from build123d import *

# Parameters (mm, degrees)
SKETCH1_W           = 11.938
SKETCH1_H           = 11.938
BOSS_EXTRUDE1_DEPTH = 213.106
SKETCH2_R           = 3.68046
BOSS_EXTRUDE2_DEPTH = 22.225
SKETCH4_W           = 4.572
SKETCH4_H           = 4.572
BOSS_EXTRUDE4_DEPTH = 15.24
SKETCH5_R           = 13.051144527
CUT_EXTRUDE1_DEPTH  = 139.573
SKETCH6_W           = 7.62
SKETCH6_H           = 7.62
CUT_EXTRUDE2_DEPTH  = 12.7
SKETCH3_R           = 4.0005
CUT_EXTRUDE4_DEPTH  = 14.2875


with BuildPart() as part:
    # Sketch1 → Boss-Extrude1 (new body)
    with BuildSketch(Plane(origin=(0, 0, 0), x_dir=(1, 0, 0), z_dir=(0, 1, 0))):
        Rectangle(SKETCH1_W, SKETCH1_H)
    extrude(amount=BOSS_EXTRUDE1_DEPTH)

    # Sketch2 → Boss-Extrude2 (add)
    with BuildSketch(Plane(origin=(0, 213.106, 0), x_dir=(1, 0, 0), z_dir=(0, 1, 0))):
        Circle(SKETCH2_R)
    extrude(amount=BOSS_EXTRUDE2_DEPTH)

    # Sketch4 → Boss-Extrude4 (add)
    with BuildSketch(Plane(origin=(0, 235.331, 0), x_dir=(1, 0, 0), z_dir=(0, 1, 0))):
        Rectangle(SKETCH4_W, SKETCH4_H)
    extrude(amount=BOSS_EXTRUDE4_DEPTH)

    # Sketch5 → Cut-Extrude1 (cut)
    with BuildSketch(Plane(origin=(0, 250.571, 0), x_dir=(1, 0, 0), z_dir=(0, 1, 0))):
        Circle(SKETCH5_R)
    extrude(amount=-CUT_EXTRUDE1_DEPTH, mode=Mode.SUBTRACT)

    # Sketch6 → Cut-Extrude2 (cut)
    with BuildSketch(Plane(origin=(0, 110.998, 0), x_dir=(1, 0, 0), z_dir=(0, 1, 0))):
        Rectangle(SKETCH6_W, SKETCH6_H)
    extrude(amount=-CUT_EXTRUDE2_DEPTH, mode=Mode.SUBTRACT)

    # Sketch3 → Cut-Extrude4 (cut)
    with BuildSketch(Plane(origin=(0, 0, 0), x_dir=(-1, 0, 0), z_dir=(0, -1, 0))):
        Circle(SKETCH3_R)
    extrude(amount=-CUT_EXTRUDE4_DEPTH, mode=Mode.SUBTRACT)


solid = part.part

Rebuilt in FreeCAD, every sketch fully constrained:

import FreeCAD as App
import Part
import Sketcher

V = App.Vector
Q = App.Units.Quantity

doc = App.newDocument("Part")
body = doc.addObject("PartDesign::Body", "Body")

# Sketch on XZ plane
sketch1 = body.newObject("Sketcher::SketchObject", "Sketch")
sketch1.AttachmentSupport = (doc.getObject("XZ_Plane"), [""])
sketch1.MapMode = "FlatFace"
sketch1.addGeometry(Part.LineSegment(V(-5.969, -5.969, 0), V(-5.969, 5.969, 0)), False)
sketch1.addGeometry(Part.LineSegment(V(-5.969, 5.969, 0), V(5.969, 5.969, 0)), False)
sketch1.addGeometry(Part.LineSegment(V(5.969, 5.969, 0), V(5.969, -5.969, 0)), False)
sketch1.addGeometry(Part.LineSegment(V(5.969, -5.969, 0), V(-5.969, -5.969, 0)), False)
sketch1.addConstraint(Sketcher.Constraint("Coincident", 0, 2, 1, 1))
sketch1.addConstraint(Sketcher.Constraint("Coincident", 1, 2, 2, 1))
sketch1.addConstraint(Sketcher.Constraint("Coincident", 2, 2, 3, 1))
sketch1.addConstraint(Sketcher.Constraint("Coincident", 3, 2, 0, 1))
sketch1.addConstraint(Sketcher.Constraint("Vertical", 0))
sketch1.addConstraint(Sketcher.Constraint("Horizontal", 1))
sketch1.addConstraint(Sketcher.Constraint("Vertical", 2))
sketch1.addConstraint(Sketcher.Constraint("Horizontal", 3))
sketch1.addConstraint(Sketcher.Constraint("Symmetric", 0, 2, 2, 2, -1, 1))
sketch1.addConstraint(Sketcher.Constraint("Equal", 3, 0))
sketch1.addConstraint(Sketcher.Constraint("DistanceX", 1, 1, 1, 2, Q("0.47 in")))
pad1 = body.newObject("PartDesign::Pad", "Pad")
pad1.Profile = sketch1
pad1.Length = Q("8.39 in")
pad1.Reversed = True

# Sketch on XZ plane
sketch2 = body.newObject("Sketcher::SketchObject", "Sketch001")
sketch2.AttachmentSupport = (doc.getObject("XZ_Plane"), [""])
sketch2.MapMode = "FlatFace"
sketch2.AttachmentOffset = App.Placement(V(0, 0, -8.39 * 25.4), App.Rotation())
sketch2.addGeometry(Part.Circle(V(0, 0, 0), V(0, 0, 1), 3.68046), False)
sketch2.addConstraint(Sketcher.Constraint("Coincident", 0, 3, -1, 1))
sketch2.addConstraint(Sketcher.Constraint("Diameter", 0, Q("0.2898 in")))
pad2 = body.newObject("PartDesign::Pad", "Pad001")
pad2.Profile = sketch2
pad2.Length = Q("0.875 in")
pad2.Reversed = True

# Sketch on XZ plane
sketch3 = body.newObject("Sketcher::SketchObject", "Sketch002")
sketch3.AttachmentSupport = (doc.getObject("XZ_Plane"), [""])
sketch3.MapMode = "FlatFace"
sketch3.AttachmentOffset = App.Placement(V(0, 0, -9.265 * 25.4), App.Rotation())
sketch3.addGeometry(Part.LineSegment(V(-2.286, -2.286, 0), V(-2.286, 2.286, 0)), False)
sketch3.addGeometry(Part.LineSegment(V(-2.286, 2.286, 0), V(2.286, 2.286, 0)), False)
sketch3.addGeometry(Part.LineSegment(V(2.286, 2.286, 0), V(2.286, -2.286, 0)), False)
sketch3.addGeometry(Part.LineSegment(V(2.286, -2.286, 0), V(-2.286, -2.286, 0)), False)
sketch3.addConstraint(Sketcher.Constraint("Coincident", 0, 2, 1, 1))
sketch3.addConstraint(Sketcher.Constraint("Coincident", 1, 2, 2, 1))
sketch3.addConstraint(Sketcher.Constraint("Coincident", 2, 2, 3, 1))
sketch3.addConstraint(Sketcher.Constraint("Coincident", 3, 2, 0, 1))
sketch3.addConstraint(Sketcher.Constraint("Vertical", 0))
sketch3.addConstraint(Sketcher.Constraint("Horizontal", 1))
sketch3.addConstraint(Sketcher.Constraint("Vertical", 2))
sketch3.addConstraint(Sketcher.Constraint("Horizontal", 3))
sketch3.addConstraint(Sketcher.Constraint("Symmetric", 0, 2, 2, 2, -1, 1))
sketch3.addConstraint(Sketcher.Constraint("Equal", 3, 0))
sketch3.addConstraint(Sketcher.Constraint("DistanceX", 1, 1, 1, 2, Q("0.18 in")))
pad3 = body.newObject("PartDesign::Pad", "Pad002")
pad3.Profile = sketch3
pad3.Length = Q("0.6 in")
pad3.Reversed = True

# Sketch on XZ plane
sketch4 = body.newObject("Sketcher::SketchObject", "Sketch003")
sketch4.AttachmentSupport = (doc.getObject("XZ_Plane"), [""])
sketch4.MapMode = "FlatFace"
sketch4.AttachmentOffset = App.Placement(V(0, 0, -9.865 * 25.4), App.Rotation())
sketch4.addGeometry(Part.Circle(V(0, 0, 0), V(0, 0, 1), 13.051145), False)
sketch4.addConstraint(Sketcher.Constraint("Coincident", 0, 3, -1, 1))
sketch4.addConstraint(Sketcher.Constraint("Diameter", 0, Q("26.102289 mm")))
pocket1 = body.newObject("PartDesign::Pocket", "Pocket")
pocket1.Profile = sketch4
pocket1.Length = Q("5.495 in")
pocket1.Reversed = True

# Sketch on XZ plane
sketch5 = body.newObject("Sketcher::SketchObject", "Sketch004")
sketch5.AttachmentSupport = (doc.getObject("XZ_Plane"), [""])
sketch5.MapMode = "FlatFace"
sketch5.AttachmentOffset = App.Placement(V(0, 0, -4.37 * 25.4), App.Rotation())
sketch5.addGeometry(Part.LineSegment(V(-3.81, -3.81, 0), V(-3.81, 3.81, 0)), False)
sketch5.addGeometry(Part.LineSegment(V(-3.81, 3.81, 0), V(3.81, 3.81, 0)), False)
sketch5.addGeometry(Part.LineSegment(V(3.81, 3.81, 0), V(3.81, -3.81, 0)), False)
sketch5.addGeometry(Part.LineSegment(V(3.81, -3.81, 0), V(-3.81, -3.81, 0)), False)
sketch5.addConstraint(Sketcher.Constraint("Coincident", 0, 2, 1, 1))
sketch5.addConstraint(Sketcher.Constraint("Coincident", 1, 2, 2, 1))
sketch5.addConstraint(Sketcher.Constraint("Coincident", 2, 2, 3, 1))
sketch5.addConstraint(Sketcher.Constraint("Coincident", 3, 2, 0, 1))
sketch5.addConstraint(Sketcher.Constraint("Vertical", 0))
sketch5.addConstraint(Sketcher.Constraint("Horizontal", 1))
sketch5.addConstraint(Sketcher.Constraint("Vertical", 2))
sketch5.addConstraint(Sketcher.Constraint("Horizontal", 3))
sketch5.addConstraint(Sketcher.Constraint("Symmetric", 0, 2, 2, 2, -1, 1))
sketch5.addConstraint(Sketcher.Constraint("Equal", 3, 0))
sketch5.addConstraint(Sketcher.Constraint("DistanceX", 1, 1, 1, 2, Q("0.3 in")))
pocket2 = body.newObject("PartDesign::Pocket", "Pocket001")
pocket2.Profile = sketch5
pocket2.Length = Q("0.5 in")
pocket2.Reversed = True

# Sketch on XZ plane
sketch6 = body.newObject("Sketcher::SketchObject", "Sketch005")
sketch6.AttachmentSupport = (doc.getObject("XZ_Plane"), [""])
sketch6.MapMode = "FlatFace"
sketch6.addGeometry(Part.Circle(V(0, 0, 0), V(0, 0, 1), 4.0005), False)
sketch6.addConstraint(Sketcher.Constraint("Coincident", 0, 3, -1, 1))
sketch6.addConstraint(Sketcher.Constraint("Diameter", 0, Q("0.315 in")))
pocket3 = body.newObject("PartDesign::Pocket", "Pocket002")
pocket3.Profile = sketch6
pocket3.Length = Q("0.5625 in")

doc.recompute()
